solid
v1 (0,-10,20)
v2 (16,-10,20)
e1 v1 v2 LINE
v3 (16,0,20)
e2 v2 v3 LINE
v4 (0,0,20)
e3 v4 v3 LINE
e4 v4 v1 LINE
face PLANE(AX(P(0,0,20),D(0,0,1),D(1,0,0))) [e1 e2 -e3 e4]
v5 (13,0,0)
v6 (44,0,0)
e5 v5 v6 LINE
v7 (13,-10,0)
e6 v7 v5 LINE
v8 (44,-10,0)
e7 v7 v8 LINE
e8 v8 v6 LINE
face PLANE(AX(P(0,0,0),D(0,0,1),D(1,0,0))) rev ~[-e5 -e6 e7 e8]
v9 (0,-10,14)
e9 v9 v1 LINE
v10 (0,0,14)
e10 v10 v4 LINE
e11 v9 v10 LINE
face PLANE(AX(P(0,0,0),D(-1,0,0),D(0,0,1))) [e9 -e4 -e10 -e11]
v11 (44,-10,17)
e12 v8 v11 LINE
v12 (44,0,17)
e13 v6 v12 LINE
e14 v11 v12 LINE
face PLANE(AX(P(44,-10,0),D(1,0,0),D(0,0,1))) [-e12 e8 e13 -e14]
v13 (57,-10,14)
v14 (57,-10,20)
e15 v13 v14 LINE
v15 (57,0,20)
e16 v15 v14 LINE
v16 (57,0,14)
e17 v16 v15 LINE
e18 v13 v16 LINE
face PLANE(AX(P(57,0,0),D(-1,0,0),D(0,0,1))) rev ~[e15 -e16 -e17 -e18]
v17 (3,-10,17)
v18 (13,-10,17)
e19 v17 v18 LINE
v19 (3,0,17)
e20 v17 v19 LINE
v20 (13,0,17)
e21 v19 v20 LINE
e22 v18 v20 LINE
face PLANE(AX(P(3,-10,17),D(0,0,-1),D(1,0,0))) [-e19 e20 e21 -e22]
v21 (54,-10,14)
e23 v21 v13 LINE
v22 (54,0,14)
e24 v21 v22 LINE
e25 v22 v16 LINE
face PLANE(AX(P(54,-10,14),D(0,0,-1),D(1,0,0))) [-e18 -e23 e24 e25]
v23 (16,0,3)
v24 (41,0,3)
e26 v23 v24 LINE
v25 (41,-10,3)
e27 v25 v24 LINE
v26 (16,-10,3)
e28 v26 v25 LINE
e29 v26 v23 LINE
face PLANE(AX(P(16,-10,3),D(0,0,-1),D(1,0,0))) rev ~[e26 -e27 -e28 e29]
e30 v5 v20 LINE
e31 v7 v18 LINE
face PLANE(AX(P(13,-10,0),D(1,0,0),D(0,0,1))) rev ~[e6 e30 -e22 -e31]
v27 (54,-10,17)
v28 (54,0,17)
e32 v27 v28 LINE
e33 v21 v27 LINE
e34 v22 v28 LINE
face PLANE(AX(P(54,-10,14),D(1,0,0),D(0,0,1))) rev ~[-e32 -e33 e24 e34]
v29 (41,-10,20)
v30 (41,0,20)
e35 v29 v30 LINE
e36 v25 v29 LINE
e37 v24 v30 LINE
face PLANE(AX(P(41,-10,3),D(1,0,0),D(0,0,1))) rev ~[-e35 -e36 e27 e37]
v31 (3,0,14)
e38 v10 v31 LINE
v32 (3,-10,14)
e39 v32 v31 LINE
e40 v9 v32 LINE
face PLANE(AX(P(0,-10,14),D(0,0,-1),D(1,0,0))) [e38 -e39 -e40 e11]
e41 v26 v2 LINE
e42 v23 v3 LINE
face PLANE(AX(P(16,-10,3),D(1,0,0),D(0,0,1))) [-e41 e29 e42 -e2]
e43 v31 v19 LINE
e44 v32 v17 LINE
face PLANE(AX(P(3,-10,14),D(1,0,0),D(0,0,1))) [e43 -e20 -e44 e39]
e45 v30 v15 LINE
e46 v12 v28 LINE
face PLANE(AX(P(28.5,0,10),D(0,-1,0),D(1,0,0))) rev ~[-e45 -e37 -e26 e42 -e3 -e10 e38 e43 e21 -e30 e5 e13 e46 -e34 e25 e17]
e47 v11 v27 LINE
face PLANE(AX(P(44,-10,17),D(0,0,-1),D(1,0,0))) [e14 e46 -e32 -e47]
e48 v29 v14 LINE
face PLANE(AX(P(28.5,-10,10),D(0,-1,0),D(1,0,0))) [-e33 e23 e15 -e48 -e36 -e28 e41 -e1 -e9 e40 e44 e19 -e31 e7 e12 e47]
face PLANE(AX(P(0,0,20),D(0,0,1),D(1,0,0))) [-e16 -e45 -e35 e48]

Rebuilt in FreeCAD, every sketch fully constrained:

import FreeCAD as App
import Part
import Sketcher


def add_polygon(sketch, points):
    """Adds a closed chain of lines whose ends are joined by coincident constraints."""
    first, n = sketch.GeometryCount, len(points)
    for a, b in zip(points, points[1:] + points[:1]):
        sketch.addGeometry(Part.LineSegment(App.Vector(*a, 0), App.Vector(*b, 0)), False)
    for i in range(n):
        sketch.addConstraint(Sketcher.Constraint("Coincident", first + i, 2, first + (i + 1) % n, 1))

doc = App.newDocument("Part")
params = doc.addObject("Spreadsheet::Sheet", "Params")
for row, (alias, value) in enumerate([
    ("sketch1_width", "57 mm"),
    ("sketch1_height", "20 mm"),
    ("pad1_length", "10 mm"),
    ("sketch2_width", "3 mm"),
    ("sketch2_width2", "13 mm"),
    ("sketch2_width3", "25 mm"),
    ("sketch2_height", "14 mm"),
    ("pocket1_length", "10 mm"),
], start=1):
    params.set(f"A{row}", alias)
    params.set(f"B{row}", "=" + value)
    params.setAlias(f"B{row}", alias)

body = doc.addObject("PartDesign::Body", "Body")

# Sketch on XZ plane
sketch1 = doc.addObject("Sketcher::SketchObject", "Sketch")
body.addObject(sketch1)
sketch1.AttachmentSupport = (doc.XZ_Plane, [""])
sketch1.MapMode = "FlatFace"
add_polygon(sketch1, [(0, 20), (0, 0), (57, 0), (57, 20)])  # lines 0-3
sketch1.addConstraint([
    Sketcher.Constraint("Vertical", 0),
    Sketcher.Constraint("Horizontal", 1),
    Sketcher.Constraint("Vertical", 2),
    Sketcher.Constraint("Horizontal", 3),
    Sketcher.Constraint("Coincident", 0, 2, -1, 1),
    Sketcher.Constraint("DistanceX", 1, 1, 1, 2, 57.0),
    Sketcher.Constraint("DistanceY", 0, 2, 0, 1, 20.0),
])
sketch1.setExpression("Constraints[9]", "Params.sketch1_width")
sketch1.setExpression("Constraints[10]", "Params.sketch1_height")
pad1 = doc.addObject("PartDesign::Pad", "Pad")
body.addObject(pad1)
pad1.Profile = sketch1
pad1.setExpression("Length", "Params.pad1_length")

# Sketch on XZ plane
sketch2 = doc.addObject("Sketcher::SketchObject", "Sketch001")
body.addObject(sketch2)
sketch2.AttachmentSupport = (doc.XZ_Plane, [""])
sketch2.MapMode = "FlatFace"
sketch2.AttachmentOffset = App.Placement(App.Vector(0, 0, 10), App.Rotation())
add_polygon(sketch2, [(3, 17), (3, 14), (0, 14), (0, 0), (13, 0), (13, 17)])  # lines 0-5
add_polygon(sketch2, [(16, 20), (16, 3), (41, 3), (41, 20)])  # lines 6-9
add_polygon(sketch2, [(44, 17), (44, 0), (57, 0), (57, 14), (54, 14), (54, 17)])  # lines 10-15
sketch2.addConstraint([
    Sketcher.Constraint("Vertical", 0),
    Sketcher.Constraint("Horizontal", 1),
    Sketcher.Constraint("Vertical", 2),
    Sketcher.Constraint("Horizontal", 3),
    Sketcher.Constraint("Vertical", 4),
    Sketcher.Constraint("Horizontal", 5),
    Sketcher.Constraint("Vertical", 6),
    Sketcher.Constraint("Horizontal", 7),
    Sketcher.Constraint("Vertical", 8),
    Sketcher.Constraint("Horizontal", 9),
    Sketcher.Constraint("Vertical", 10),
    Sketcher.Constraint("Horizontal", 11),
    Sketcher.Constraint("Vertical", 12),
    Sketcher.Constraint("Horizontal", 13),
    Sketcher.Constraint("Vertical", 14),
    Sketcher.Constraint("Horizontal", 15),
    Sketcher.Constraint("Coincident", 2, 2, -1, 1),
    Sketcher.Constraint("PointOnObject", 10, 2, -1),
    Sketcher.Constraint("Horizontal", 1, 2, 12, 2),
    Sketcher.Constraint("Horizontal", 5, 2, 14, 2),
    Sketcher.Constraint("Equal", 3, 11),
    Sketcher.Constraint("Equal", 1, 13),
    Sketcher.Constraint("Equal", 13, 0),
    Sketcher.Constraint("Equal", 4, 6),
    Sketcher.Constraint("DistanceX", 1, 2, 1, 1, 3.0),
    Sketcher.Constraint("DistanceX", 3, 1, 3, 2, 13.0),
    Sketcher.Constraint("DistanceX", 7, 1, 7, 2, 25.0),
    Sketcher.Constraint("DistanceY", 2, 2, 2, 1, 14.0),
    Sketcher.Constraint("DistanceX", -1, 1, 6, 2, 16.0),
    Sketcher.Constraint("DistanceY", -1, 1, 6, 2, 3.0),
    Sketcher.Constraint("DistanceX", -1, 1, 10, 2, 44.0),
])
sketch2.setExpression("Constraints[40]", "Params.sketch2_width")
sketch2.setExpression("Constraints[41]", "Params.sketch2_width2")
sketch2.setExpression("Constraints[42]", "Params.sketch2_width3")
sketch2.setExpression("Constraints[43]", "Params.sketch2_height")
pocket1 = doc.addObject("PartDesign::Pocket", "Pocket")
body.addObject(pocket1)
pocket1.Profile = sketch2
pocket1.setExpression("Length", "Params.pocket1_length")

doc.recompute()
